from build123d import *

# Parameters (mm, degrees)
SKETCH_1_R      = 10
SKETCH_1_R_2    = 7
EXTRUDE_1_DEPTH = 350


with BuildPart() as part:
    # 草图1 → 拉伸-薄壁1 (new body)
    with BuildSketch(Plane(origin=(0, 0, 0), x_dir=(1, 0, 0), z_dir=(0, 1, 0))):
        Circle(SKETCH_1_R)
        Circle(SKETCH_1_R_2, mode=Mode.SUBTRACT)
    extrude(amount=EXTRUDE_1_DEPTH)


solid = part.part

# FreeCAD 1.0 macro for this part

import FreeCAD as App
import Part
import Sketcher
Q = App.Units.Quantity

doc = App.newDocument("Part")
body = doc.addObject("PartDesign::Body", "Body")

sketch1 = body.newObject("Sketcher::SketchObject", "Sketch")
sketch1.AttachmentSupport = (doc.getObject("XZ_Plane"), [""])
sketch1.MapMode = "FlatFace"
sketch1.addGeometry([
    Part.Circle(App.Vector(0, 0, 0), App.Vector(0, 0, 1), 10),
    Part.Circle(App.Vector(0, 0, 0), App.Vector(0, 0, 1), 7),
], False)
sketch1.addConstraint([
    Sketcher.Constraint("Coincident", 0, 3, -1, 1),
    Sketcher.Constraint("Coincident", 1, 3, -1, 1),
    Sketcher.Constraint("Diameter", 0, Q("20 mm")),
    Sketcher.Constraint("Diameter", 1, Q("14 mm")),
])
pad1 = body.newObject("PartDesign::Pad", "Pad")
pad1.Profile = sketch1
pad1.Length = 350
pad1.Reversed = True

doc.recompute()
